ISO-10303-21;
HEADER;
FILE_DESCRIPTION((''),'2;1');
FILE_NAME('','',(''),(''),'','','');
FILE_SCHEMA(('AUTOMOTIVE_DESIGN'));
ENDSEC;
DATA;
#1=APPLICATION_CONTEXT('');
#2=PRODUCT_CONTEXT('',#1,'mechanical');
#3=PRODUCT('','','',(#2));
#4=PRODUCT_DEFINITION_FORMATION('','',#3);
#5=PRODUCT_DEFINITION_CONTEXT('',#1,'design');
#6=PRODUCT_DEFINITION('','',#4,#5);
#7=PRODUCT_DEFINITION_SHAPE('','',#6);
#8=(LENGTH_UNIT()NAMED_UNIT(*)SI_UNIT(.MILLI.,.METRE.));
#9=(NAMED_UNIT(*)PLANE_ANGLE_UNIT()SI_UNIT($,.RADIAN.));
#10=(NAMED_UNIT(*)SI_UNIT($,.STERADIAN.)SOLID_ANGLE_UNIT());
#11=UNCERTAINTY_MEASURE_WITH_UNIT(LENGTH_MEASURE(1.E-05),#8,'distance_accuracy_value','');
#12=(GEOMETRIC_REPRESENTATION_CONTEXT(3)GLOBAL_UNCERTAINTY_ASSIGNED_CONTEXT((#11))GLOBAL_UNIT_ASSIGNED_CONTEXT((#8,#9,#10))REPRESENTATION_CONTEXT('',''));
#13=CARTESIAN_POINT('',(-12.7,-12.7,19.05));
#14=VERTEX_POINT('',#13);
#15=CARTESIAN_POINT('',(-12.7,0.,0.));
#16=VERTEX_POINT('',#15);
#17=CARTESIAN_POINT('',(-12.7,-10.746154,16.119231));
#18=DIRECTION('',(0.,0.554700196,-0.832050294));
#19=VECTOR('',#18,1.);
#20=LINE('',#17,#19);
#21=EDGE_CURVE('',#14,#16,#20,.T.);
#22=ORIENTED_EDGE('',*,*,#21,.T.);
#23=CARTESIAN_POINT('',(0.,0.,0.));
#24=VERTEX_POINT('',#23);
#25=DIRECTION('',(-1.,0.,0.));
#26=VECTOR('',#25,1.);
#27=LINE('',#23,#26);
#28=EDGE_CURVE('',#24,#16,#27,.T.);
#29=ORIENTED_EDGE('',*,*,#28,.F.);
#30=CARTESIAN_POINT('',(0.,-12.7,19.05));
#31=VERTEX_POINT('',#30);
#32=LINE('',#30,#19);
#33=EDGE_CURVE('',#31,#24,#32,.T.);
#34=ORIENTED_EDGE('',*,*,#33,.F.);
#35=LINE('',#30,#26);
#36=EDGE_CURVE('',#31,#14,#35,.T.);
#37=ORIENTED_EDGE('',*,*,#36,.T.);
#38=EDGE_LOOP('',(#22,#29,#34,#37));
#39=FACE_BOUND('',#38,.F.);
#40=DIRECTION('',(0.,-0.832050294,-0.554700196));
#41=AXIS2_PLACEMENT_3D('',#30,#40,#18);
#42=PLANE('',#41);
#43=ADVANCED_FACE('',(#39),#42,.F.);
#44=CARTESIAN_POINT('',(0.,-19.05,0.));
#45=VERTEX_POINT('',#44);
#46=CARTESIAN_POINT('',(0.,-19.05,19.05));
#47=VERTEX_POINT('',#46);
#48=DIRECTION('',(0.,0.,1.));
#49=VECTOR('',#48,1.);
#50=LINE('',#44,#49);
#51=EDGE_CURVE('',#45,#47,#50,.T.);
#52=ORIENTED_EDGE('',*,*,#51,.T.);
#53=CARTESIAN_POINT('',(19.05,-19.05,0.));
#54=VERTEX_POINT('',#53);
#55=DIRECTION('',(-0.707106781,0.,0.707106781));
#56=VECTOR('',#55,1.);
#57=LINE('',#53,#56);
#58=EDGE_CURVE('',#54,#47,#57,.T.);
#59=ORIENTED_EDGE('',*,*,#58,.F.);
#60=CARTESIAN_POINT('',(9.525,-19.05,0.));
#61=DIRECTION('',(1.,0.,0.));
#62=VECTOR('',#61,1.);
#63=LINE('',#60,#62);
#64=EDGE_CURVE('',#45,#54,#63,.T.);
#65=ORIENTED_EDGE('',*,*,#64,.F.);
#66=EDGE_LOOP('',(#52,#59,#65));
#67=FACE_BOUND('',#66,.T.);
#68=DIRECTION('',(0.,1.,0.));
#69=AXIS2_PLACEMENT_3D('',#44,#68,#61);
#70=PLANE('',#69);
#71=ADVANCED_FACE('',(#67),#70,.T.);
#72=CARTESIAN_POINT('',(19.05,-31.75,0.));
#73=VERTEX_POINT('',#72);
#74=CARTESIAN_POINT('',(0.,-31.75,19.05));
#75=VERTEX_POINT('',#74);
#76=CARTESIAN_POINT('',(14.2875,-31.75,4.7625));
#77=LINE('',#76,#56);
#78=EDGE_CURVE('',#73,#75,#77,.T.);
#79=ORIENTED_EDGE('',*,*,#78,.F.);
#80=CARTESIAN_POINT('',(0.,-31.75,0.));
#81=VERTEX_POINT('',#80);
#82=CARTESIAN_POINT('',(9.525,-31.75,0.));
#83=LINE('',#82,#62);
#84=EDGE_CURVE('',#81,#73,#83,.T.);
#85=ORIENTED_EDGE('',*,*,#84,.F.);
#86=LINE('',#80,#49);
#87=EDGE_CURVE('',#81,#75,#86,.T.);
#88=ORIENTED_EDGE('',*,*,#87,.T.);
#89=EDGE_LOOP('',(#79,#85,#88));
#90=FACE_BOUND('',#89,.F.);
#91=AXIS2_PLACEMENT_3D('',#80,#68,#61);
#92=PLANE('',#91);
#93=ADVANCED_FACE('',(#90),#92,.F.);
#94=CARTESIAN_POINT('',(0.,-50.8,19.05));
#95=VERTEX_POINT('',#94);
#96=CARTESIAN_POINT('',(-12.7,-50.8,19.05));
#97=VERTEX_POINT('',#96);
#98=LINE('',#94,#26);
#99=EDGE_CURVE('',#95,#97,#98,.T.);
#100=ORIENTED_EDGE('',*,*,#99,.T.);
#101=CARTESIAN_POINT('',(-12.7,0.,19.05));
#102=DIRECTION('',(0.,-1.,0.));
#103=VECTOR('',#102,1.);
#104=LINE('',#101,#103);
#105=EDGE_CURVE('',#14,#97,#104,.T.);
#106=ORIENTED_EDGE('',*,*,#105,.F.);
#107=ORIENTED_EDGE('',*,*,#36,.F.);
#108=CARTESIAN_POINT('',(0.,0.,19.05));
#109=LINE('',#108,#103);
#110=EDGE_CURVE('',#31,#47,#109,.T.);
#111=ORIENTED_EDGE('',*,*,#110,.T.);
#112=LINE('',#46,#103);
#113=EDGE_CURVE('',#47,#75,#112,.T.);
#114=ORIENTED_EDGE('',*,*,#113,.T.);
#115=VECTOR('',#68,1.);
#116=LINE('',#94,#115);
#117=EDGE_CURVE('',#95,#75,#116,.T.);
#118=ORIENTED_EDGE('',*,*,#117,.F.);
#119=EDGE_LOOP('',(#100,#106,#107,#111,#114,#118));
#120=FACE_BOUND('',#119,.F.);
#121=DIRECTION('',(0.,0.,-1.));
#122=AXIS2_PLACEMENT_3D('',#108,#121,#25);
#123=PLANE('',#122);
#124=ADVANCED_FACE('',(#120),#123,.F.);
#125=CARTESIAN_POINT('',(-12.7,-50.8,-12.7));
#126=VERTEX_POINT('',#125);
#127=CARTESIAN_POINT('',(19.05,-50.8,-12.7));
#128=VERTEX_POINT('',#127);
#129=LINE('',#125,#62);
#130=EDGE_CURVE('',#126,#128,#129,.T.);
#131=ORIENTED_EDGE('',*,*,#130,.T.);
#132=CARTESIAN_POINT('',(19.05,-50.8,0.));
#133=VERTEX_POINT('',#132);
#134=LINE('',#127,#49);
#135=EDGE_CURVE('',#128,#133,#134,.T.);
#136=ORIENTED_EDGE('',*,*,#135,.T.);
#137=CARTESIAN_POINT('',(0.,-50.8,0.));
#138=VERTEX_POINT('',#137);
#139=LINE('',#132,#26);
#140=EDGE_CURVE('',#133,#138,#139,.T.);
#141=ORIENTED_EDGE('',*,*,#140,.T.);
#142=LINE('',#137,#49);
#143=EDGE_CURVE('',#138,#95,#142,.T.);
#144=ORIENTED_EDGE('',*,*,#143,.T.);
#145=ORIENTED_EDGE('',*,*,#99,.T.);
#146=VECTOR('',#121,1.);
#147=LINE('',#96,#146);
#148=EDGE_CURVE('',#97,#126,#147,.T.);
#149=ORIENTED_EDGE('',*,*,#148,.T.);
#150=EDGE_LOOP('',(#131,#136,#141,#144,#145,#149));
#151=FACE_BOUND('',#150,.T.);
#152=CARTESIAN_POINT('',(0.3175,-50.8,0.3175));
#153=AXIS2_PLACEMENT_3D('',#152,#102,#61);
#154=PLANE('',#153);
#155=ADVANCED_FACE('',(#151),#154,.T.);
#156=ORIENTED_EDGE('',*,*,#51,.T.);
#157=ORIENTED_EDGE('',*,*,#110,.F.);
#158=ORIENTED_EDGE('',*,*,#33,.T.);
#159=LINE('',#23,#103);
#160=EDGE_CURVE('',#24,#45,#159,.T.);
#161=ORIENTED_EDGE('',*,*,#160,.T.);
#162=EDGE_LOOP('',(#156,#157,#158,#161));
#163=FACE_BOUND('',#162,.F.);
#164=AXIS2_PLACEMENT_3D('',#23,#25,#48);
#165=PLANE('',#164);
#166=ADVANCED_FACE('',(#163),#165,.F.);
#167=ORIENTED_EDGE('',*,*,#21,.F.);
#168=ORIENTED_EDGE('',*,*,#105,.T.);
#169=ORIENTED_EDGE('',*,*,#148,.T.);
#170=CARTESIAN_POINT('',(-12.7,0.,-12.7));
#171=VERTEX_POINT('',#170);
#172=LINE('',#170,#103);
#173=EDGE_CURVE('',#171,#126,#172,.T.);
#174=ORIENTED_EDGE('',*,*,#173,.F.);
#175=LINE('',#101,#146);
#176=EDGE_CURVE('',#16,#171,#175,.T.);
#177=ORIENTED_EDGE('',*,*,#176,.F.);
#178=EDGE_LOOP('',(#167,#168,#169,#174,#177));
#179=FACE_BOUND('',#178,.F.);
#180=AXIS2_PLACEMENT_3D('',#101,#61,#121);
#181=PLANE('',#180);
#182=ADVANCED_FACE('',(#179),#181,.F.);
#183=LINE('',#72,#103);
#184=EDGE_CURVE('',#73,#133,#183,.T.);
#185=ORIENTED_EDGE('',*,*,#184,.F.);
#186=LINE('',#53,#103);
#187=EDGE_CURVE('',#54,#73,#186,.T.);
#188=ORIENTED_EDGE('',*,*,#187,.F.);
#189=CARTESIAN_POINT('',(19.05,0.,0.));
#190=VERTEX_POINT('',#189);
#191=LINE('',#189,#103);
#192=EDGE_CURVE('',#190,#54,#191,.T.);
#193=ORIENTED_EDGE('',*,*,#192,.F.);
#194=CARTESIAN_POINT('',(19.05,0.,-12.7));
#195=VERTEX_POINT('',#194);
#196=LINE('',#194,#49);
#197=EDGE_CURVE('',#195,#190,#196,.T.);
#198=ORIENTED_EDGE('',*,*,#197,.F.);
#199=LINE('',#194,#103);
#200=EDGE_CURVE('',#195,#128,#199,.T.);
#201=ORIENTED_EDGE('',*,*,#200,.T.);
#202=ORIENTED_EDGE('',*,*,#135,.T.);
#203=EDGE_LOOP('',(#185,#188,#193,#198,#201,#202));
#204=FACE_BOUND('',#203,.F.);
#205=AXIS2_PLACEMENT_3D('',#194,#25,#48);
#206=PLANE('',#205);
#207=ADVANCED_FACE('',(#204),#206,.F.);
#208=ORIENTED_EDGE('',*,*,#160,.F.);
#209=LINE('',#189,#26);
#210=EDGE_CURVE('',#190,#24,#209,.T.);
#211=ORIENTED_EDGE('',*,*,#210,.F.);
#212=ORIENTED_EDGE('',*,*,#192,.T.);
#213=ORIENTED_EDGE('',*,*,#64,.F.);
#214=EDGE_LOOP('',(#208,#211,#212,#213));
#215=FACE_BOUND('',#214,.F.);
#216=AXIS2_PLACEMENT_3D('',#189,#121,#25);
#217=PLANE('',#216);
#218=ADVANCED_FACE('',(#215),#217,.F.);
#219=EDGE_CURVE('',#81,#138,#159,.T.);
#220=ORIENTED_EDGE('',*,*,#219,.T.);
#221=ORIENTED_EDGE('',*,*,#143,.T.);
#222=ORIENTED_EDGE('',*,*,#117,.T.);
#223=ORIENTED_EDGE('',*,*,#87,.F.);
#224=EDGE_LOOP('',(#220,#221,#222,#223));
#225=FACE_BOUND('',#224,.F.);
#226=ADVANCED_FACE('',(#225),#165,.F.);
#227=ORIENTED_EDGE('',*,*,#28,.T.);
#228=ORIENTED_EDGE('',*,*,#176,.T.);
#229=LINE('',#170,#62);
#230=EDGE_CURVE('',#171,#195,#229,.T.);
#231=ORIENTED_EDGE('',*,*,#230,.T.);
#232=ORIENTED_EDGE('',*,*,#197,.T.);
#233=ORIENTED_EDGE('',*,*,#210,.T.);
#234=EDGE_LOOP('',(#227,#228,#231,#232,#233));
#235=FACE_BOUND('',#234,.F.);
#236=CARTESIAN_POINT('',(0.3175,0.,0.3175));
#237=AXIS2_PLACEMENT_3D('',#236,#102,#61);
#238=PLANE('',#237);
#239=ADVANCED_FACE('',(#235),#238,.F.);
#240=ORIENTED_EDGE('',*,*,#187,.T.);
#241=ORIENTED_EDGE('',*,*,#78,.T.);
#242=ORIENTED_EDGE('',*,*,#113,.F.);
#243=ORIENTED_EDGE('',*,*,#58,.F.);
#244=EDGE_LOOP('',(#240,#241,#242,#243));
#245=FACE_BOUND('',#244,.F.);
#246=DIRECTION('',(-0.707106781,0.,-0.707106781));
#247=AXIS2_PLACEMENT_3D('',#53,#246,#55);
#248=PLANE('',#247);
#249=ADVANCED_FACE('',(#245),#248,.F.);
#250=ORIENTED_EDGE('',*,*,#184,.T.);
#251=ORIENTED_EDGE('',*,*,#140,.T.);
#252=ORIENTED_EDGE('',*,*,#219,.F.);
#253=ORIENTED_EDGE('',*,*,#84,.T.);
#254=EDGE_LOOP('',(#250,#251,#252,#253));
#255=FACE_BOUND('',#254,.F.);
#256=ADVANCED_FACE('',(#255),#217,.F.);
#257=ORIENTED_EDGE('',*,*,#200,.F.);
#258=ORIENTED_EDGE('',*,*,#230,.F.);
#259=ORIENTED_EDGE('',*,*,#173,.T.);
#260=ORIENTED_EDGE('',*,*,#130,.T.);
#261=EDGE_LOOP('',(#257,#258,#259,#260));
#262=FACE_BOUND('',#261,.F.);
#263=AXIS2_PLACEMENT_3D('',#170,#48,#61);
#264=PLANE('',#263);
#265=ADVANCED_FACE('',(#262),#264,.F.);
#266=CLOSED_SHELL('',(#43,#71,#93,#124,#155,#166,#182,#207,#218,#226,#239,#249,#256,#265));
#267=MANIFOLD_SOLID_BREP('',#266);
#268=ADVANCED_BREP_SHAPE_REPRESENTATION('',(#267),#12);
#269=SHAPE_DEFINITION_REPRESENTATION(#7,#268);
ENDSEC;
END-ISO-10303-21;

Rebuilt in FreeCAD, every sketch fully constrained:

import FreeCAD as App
import Part
import Sketcher

V = App.Vector
Q = App.Units.Quantity

doc = App.newDocument("Part")
body = doc.addObject("PartDesign::Body", "Body")

# Sketch on XZ plane
sketch1 = body.newObject("Sketcher::SketchObject", "Sketch")
sketch1.AttachmentSupport = (doc.getObject("XZ_Plane"), [""])
sketch1.MapMode = "FlatFace"
sketch1.addGeometry([
    Part.LineSegment(V(19, 0, 0), V(0, 0, 0)),  # 0
    Part.LineSegment(V(0, 0, 0), V(0, 19, 0)),  # 1
    Part.LineSegment(V(0, 19, 0), V(-13, 19, 0)),  # 2
    Part.LineSegment(V(-13, 19, 0), V(-13, -13, 0)),  # 3
    Part.LineSegment(V(-13, -13, 0), V(19, -13, 0)),  # 4
    Part.LineSegment(V(19, -13, 0), V(19, 0, 0)),  # 5
], False)
sketch1.addConstraint([
    Sketcher.Constraint("Coincident", 0, 2, 1, 1),
    Sketcher.Constraint("Coincident", 1, 2, 2, 1),
    Sketcher.Constraint("Coincident", 2, 2, 3, 1),
    Sketcher.Constraint("Coincident", 3, 2, 4, 1),
    Sketcher.Constraint("Coincident", 4, 2, 5, 1),
    Sketcher.Constraint("Coincident", 5, 2, 0, 1),
    Sketcher.Constraint("Horizontal", 0),
    Sketcher.Constraint("Vertical", 1),
    Sketcher.Constraint("Horizontal", 2),
    Sketcher.Constraint("Vertical", 3),
    Sketcher.Constraint("Horizontal", 4),
    Sketcher.Constraint("Vertical", 5),
    Sketcher.Constraint("Coincident", 0, 2, -1, 1),
    Sketcher.Constraint("Equal", 0, 1),
    Sketcher.Constraint("Equal", 4, 3),
    Sketcher.Constraint("DistanceX", 2, 2, 2, 1, Q("0.5 in")),
    Sketcher.Constraint("DistanceX", 0, 2, 0, 1, Q("0.75 in")),
])
pad1 = body.newObject("PartDesign::Pad", "Pad")
pad1.Profile = sketch1
pad1.Length = Q("2 in")

# Sketch on YZ plane
sketch2 = body.newObject("Sketcher::SketchObject", "Sketch001")
sketch2.AttachmentSupport = (doc.getObject("YZ_Plane"), [""])
sketch2.MapMode = "FlatFace"
sketch2.addGeometry([
    Part.LineSegment(V(0, 19, 0), V(-13, 19, 0)),
    Part.LineSegment(V(-13, 19, 0), V(0, 0, 0)),
    Part.LineSegment(V(0, 0, 0), V(0, 19, 0)),
], False)
sketch2.addConstraint([
    Sketcher.Constraint("Coincident", 0, 2, 1, 1),
    Sketcher.Constraint("Coincident", 1, 2, 2, 1),
    Sketcher.Constraint("Coincident", 2, 2, 0, 1),
    Sketcher.Constraint("Horizontal", 0),
    Sketcher.Constraint("Vertical", 2),
    Sketcher.Constraint("Coincident", 1, 2, -1, 1),
    Sketcher.Constraint("DistanceX", 0, 2, 0, 1, Q("0.5 in")),
    Sketcher.Constraint("DistanceY", 2, 1, 2, 2, Q("0.75 in")),
])
pocket1 = body.newObject("PartDesign::Pocket", "Pocket")
pocket1.Profile = sketch2
pocket1.Length = Q("1 in")

# Sketch on XY plane
sketch3 = body.newObject("Sketcher::SketchObject", "Sketch002")
sketch3.AttachmentSupport = (doc.getObject("XY_Plane"), [""])
sketch3.MapMode = "FlatFace"
sketch3.addGeometry([
    Part.LineSegment(V(0, -19, 0), V(0, -32, 0)),
    Part.LineSegment(V(0, -32, 0), V(19, -32, 0)),
    Part.LineSegment(V(19, -32, 0), V(19, -19, 0)),
    Part.LineSegment(V(19, -19, 0), V(0, -19, 0)),
], False)
sketch3.addConstraint([
    Sketcher.Constraint("Coincident", 0, 2, 1, 1),
    Sketcher.Constraint("Coincident", 1, 2, 2, 1),
    Sketcher.Constraint("Coincident", 2, 2, 3, 1),
    Sketcher.Constraint("Coincident", 3, 2, 0, 1),
    Sketcher.Constraint("Vertical", 0),
    Sketcher.Constraint("Horizontal", 1),
    Sketcher.Constraint("Vertical", 2),
    Sketcher.Constraint("Horizontal", 3),
    Sketcher.Constraint("PointOnObject", 0, 2, -2),
    Sketcher.Constraint("DistanceY", 0, 2, 0, 1, Q("0.5 in")),
    Sketcher.Constraint("DistanceX", 1, 1, 1, 2, Q("0.75 in")),
    Sketcher.Constraint("DistanceY", 0, 2, -1, 1, Q("1.25 in")),
])
pad2 = body.newObject("PartDesign::Pad", "Pad001")
pad2.Profile = sketch3
pad2.Length = Q("0.75 in")

# Sketch on XZ plane
sketch4 = body.newObject("Sketcher::SketchObject", "Sketch003")
sketch4.AttachmentSupport = (doc.getObject("XZ_Plane"), [""])
sketch4.MapMode = "FlatFace"
sketch4.AttachmentOffset = App.Placement(V(0, 0, 0.75 * 25.4), App.Rotation())
sketch4.addGeometry([
    Part.LineSegment(V(19, 0, 0), V(0, 19, 0)),
    Part.LineSegment(V(0, 19, 0), V(19, 19, 0)),
    Part.LineSegment(V(19, 19, 0), V(19, 0, 0)),
], False)
sketch4.addConstraint([
    Sketcher.Constraint("Coincident", 0, 2, 1, 1),
    Sketcher.Constraint("Coincident", 1, 2, 2, 1),
    Sketcher.Constraint("Coincident", 2, 2, 0, 1),
    Sketcher.Constraint("Horizontal", 1),
    Sketcher.Constraint("Vertical", 2),
    Sketcher.Constraint("PointOnObject", 0, 2, -2),
    Sketcher.Constraint("PointOnObject", 2, 2, -1),
    Sketcher.Constraint("Equal", 1, 2),
    Sketcher.Constraint("DistanceX", 1, 1, 1, 2, Q("0.75 in")),
])
pocket2 = body.newObject("PartDesign::Pocket", "Pocket001")
pocket2.Profile = sketch4
pocket2.Length = Q("1 in")
pocket2.Reversed = True

doc.recompute()
